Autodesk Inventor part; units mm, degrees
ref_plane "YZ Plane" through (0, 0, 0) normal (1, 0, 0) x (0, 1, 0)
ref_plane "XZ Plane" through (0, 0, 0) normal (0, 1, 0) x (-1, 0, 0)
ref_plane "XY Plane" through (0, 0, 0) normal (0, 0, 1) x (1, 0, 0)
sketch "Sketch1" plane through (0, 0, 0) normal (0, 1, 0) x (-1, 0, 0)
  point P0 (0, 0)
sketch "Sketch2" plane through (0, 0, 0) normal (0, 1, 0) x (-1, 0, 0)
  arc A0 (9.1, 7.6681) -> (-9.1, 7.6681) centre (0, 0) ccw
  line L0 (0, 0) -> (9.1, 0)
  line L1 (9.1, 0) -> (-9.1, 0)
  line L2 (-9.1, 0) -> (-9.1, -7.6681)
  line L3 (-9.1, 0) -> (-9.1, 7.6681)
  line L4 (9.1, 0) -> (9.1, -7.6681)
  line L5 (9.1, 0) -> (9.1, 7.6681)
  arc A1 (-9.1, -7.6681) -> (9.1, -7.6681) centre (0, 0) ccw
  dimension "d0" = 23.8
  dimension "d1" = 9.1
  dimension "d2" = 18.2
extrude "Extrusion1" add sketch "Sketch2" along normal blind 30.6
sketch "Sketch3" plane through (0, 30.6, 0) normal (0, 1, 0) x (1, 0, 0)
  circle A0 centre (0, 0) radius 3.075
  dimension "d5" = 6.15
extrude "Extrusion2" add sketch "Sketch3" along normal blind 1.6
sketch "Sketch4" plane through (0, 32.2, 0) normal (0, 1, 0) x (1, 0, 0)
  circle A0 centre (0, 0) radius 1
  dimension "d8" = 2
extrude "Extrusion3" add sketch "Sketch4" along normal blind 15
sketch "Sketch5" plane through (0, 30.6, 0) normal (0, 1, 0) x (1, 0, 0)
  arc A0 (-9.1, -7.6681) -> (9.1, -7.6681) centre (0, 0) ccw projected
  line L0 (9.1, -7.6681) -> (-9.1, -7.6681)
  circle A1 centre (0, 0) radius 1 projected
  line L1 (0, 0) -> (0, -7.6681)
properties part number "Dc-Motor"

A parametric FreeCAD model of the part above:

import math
import FreeCAD as App
import Part
import Sketcher
Q = App.Units.Quantity

doc = App.newDocument("Part")
body = doc.addObject("PartDesign::Body", "Body")

sketch1 = doc.addObject("Sketcher::SketchObject", "Sketch")
body.addObject(sketch1)
sketch1.AttachmentSupport = (doc.XZ_Plane, [""])
sketch1.MapMode = "FlatFace"
sketch1.addGeometry([
    Part.ArcOfCircle(Part.Circle(App.Vector(0, 0, 0), App.Vector(0, 0, 1), 12), math.radians(40), math.radians(140)),
    Part.LineSegment(App.Vector(9, 8, 0), App.Vector(9, -8, 0)),
    Part.ArcOfCircle(Part.Circle(App.Vector(0, 0, 0), App.Vector(0, 0, 1), 12), math.radians(-140), math.radians(-40)),
    Part.LineSegment(App.Vector(-9, -8, 0), App.Vector(-9, 8, 0)),
], False)
sketch1.addConstraint([
    Sketcher.Constraint("Coincident", 0, 1, 1, 1),
    Sketcher.Constraint("Coincident", 1, 2, 2, 2),
    Sketcher.Constraint("Coincident", 2, 1, 3, 1),
    Sketcher.Constraint("Coincident", 3, 2, 0, 2),
    Sketcher.Constraint("Vertical", 1),
    Sketcher.Constraint("Vertical", 3),
    Sketcher.Constraint("Coincident", 0, 3, -1, 1),
    Sketcher.Constraint("Coincident", 2, 3, -1, 1),
    Sketcher.Constraint("Equal", 0, 2),
    Sketcher.Constraint("Horizontal", 1, 2, 2, 1),
    Sketcher.Constraint("Radius", 0, Q("11.9 mm")),
    Sketcher.Constraint("DistanceX", -1, 1, 0, 1, Q("9.1 mm")),
])
pad1 = doc.addObject("PartDesign::Pad", "Pad")
body.addObject(pad1)
pad1.Profile = sketch1
pad1.Length = 30.6
pad1.Reversed = True

sketch2 = doc.addObject("Sketcher::SketchObject", "Sketch001")
body.addObject(sketch2)
sketch2.AttachmentSupport = (doc.XZ_Plane, [""])
sketch2.MapMode = "FlatFace"
sketch2.AttachmentOffset = App.Placement(App.Vector(0, 0, -30.6), App.Rotation())
sketch2.addGeometry(Part.Circle(App.Vector(0, 0, 0), App.Vector(0, 0, 1), 3.1), False)
sketch2.addConstraint([
    Sketcher.Constraint("Coincident", 0, 3, -1, 1),
    Sketcher.Constraint("Diameter", 0, Q("6.15 mm")),
])
pad2 = doc.addObject("PartDesign::Pad", "Pad001")
body.addObject(pad2)
pad2.Profile = sketch2
pad2.Length = 1.6
pad2.Reversed = True

sketch3 = doc.addObject("Sketcher::SketchObject", "Sketch002")
body.addObject(sketch3)
sketch3.AttachmentSupport = (doc.XZ_Plane, [""])
sketch3.MapMode = "FlatFace"
sketch3.AttachmentOffset = App.Placement(App.Vector(0, 0, -32.2), App.Rotation())
sketch3.addGeometry(Part.Circle(App.Vector(0, 0, 0), App.Vector(0, 0, 1), 1), False)
sketch3.addConstraint([
    Sketcher.Constraint("Coincident", 0, 3, -1, 1),
    Sketcher.Constraint("Diameter", 0, Q("2 mm")),
])
pad3 = doc.addObject("PartDesign::Pad", "Pad002")
body.addObject(pad3)
pad3.Profile = sketch3
pad3.Length = 15
pad3.Reversed = True

doc.recompute()
